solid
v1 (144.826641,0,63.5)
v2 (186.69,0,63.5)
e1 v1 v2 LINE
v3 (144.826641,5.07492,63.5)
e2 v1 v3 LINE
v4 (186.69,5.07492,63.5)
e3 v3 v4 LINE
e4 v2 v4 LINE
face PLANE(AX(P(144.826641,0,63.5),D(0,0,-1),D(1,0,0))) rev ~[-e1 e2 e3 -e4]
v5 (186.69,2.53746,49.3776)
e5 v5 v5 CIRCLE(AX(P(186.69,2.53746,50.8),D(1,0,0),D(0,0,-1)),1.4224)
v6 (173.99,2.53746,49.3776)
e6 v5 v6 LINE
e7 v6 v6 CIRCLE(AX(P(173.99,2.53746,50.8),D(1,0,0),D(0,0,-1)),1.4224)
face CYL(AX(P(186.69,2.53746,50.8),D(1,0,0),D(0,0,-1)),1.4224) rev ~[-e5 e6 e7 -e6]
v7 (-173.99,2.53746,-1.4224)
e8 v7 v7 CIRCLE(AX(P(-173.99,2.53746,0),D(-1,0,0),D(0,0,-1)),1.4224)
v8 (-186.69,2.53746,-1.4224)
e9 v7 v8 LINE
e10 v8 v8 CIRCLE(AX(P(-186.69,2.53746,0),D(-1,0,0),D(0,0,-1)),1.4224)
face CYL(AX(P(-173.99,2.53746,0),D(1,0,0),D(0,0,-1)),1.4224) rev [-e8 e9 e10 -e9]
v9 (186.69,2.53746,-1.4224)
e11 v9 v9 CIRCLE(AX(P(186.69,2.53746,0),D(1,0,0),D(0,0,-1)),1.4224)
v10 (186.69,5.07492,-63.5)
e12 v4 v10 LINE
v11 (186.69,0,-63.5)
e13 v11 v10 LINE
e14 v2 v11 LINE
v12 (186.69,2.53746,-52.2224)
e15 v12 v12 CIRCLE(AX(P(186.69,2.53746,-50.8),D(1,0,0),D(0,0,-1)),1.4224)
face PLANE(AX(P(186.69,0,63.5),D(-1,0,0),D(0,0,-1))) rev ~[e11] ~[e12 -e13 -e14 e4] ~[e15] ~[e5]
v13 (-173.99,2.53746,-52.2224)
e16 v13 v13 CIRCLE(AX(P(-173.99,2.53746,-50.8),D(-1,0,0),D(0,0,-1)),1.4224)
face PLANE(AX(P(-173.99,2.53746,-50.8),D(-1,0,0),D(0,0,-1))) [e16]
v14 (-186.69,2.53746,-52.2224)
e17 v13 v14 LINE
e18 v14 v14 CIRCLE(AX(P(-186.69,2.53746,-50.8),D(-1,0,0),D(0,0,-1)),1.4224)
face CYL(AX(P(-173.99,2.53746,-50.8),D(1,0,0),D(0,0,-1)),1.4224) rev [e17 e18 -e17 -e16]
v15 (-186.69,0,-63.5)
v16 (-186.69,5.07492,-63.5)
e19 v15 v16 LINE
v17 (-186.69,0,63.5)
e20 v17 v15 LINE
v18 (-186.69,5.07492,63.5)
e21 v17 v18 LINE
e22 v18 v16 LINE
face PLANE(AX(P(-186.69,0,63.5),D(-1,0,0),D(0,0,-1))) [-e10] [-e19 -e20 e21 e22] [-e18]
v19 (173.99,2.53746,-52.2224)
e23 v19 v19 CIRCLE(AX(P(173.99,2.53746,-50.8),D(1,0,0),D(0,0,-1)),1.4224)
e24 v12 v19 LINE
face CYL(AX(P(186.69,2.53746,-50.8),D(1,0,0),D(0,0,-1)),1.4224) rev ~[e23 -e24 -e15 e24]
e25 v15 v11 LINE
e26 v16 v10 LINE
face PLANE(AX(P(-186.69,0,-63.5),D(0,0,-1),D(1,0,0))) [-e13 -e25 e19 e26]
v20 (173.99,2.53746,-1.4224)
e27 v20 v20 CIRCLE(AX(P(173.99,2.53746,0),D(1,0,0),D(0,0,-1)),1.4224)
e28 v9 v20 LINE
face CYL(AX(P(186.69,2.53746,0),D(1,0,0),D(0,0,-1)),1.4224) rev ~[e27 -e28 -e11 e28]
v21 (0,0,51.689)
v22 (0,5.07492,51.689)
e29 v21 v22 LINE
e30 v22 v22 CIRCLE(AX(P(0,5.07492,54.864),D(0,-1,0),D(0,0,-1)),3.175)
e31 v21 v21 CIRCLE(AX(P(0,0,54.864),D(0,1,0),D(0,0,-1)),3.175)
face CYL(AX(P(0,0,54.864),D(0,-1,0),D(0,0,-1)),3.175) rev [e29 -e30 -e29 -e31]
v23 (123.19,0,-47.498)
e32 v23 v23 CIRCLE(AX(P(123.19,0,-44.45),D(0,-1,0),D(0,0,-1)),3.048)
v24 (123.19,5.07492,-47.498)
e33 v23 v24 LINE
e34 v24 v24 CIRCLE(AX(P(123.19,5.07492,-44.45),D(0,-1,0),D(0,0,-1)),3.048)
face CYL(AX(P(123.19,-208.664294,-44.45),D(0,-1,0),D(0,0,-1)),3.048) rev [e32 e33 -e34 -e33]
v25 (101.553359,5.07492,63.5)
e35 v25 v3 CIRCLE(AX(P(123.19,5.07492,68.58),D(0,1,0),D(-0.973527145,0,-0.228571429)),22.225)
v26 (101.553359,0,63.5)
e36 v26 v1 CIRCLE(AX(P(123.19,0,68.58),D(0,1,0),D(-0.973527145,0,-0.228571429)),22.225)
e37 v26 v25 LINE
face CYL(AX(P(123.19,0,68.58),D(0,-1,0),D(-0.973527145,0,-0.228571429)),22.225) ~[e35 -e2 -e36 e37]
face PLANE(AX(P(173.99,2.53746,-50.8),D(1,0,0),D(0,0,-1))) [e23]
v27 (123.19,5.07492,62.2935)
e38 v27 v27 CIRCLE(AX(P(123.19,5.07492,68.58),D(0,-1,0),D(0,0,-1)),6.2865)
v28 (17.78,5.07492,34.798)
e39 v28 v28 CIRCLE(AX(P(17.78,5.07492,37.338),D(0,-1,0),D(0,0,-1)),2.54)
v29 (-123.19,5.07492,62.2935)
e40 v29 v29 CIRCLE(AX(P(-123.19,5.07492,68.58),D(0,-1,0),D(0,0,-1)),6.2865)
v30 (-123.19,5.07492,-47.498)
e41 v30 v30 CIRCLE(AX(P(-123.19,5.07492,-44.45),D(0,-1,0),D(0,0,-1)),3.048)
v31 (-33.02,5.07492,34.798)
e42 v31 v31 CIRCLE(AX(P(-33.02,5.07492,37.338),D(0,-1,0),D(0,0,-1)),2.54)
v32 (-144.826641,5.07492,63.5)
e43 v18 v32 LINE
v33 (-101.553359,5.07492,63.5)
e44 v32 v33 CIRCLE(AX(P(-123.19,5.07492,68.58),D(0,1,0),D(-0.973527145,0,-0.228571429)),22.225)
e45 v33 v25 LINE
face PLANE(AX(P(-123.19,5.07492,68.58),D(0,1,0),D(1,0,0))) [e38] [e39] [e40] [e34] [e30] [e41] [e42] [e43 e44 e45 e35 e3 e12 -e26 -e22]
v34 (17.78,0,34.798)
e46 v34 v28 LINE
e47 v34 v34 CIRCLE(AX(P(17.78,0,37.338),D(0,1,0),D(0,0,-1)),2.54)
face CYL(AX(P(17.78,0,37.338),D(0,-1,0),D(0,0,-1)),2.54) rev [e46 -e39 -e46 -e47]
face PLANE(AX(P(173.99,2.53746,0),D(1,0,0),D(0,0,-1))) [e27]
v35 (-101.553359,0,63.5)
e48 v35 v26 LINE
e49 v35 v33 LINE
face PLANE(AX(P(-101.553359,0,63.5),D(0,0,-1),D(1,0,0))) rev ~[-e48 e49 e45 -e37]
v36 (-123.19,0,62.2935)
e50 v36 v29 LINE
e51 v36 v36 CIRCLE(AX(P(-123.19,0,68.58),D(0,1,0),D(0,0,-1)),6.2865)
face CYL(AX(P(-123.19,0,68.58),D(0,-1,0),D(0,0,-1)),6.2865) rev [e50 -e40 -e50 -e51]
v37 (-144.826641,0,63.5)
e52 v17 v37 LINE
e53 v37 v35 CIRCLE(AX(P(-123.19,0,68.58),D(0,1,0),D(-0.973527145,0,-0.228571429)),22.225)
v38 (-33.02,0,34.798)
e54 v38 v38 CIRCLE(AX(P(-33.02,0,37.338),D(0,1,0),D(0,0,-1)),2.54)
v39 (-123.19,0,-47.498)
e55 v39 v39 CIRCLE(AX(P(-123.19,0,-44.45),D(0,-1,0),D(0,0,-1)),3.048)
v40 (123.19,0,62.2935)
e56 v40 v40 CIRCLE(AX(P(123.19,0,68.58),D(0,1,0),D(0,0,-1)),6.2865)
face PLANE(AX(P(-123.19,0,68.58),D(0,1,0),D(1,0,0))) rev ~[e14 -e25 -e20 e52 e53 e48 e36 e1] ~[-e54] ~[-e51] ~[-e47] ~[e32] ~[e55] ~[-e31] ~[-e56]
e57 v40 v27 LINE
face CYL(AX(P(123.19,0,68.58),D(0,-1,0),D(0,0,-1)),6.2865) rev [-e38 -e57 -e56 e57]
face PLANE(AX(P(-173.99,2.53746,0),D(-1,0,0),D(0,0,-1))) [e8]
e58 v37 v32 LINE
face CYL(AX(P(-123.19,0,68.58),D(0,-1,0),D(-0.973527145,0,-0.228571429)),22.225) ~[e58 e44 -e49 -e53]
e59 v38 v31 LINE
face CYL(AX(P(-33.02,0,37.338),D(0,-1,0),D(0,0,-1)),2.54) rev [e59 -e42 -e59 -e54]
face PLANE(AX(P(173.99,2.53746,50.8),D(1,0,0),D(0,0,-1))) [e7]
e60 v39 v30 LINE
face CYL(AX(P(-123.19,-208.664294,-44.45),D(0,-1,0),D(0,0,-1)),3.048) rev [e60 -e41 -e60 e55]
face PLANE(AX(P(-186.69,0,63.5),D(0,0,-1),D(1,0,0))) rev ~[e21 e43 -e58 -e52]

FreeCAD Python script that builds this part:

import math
import FreeCAD as App
import Part
import Sketcher
from FreeCAD import Vector
Q = App.Units.Quantity

doc = App.newDocument("Part")
body = doc.addObject("PartDesign::Body", "Body")

# Sketch on XZ plane
sketch1 = body.newObject("Sketcher::SketchObject", "Sketch")
sketch1.AttachmentSupport = (doc.getObject("XZ_Plane"), [""])
sketch1.MapMode = "FlatFace"
sketch1.addGeometry([
    Part.ArcOfCircle(Part.Circle(Vector(-123, 69, 0), Vector(0, 0, 1), 22), math.radians(-13), math.radians(193)),  # 0
    Part.LineSegment(Vector(-102, 64, 0), Vector(102, 64, 0)),  # 1
    Part.ArcOfCircle(Part.Circle(Vector(123, 69, 0), Vector(0, 0, 1), 22), math.radians(-13), math.radians(193)),  # 2
    Part.LineSegment(Vector(145, 64, 0), Vector(187, 64, 0)),  # 3
    Part.LineSegment(Vector(187, 64, 0), Vector(187, -64, 0)),  # 4
    Part.LineSegment(Vector(187, -64, 0), Vector(-187, -64, 0)),  # 5
    Part.LineSegment(Vector(-187, -64, 0), Vector(-187, 64, 0)),  # 6
    Part.LineSegment(Vector(-187, 64, 0), Vector(-145, 64, 0)),  # 7
], False)
sketch1.addConstraint([
    Sketcher.Constraint("Coincident", 0, 1, 1, 1),
    Sketcher.Constraint("Coincident", 1, 2, 2, 2),
    Sketcher.Constraint("Coincident", 2, 1, 3, 1),
    Sketcher.Constraint("Coincident", 3, 2, 4, 1),
    Sketcher.Constraint("Coincident", 4, 2, 5, 1),
    Sketcher.Constraint("Coincident", 5, 2, 6, 1),
    Sketcher.Constraint("Coincident", 6, 2, 7, 1),
    Sketcher.Constraint("Coincident", 7, 2, 0, 2),
    Sketcher.Constraint("Horizontal", 1),
    Sketcher.Constraint("Horizontal", 3),
    Sketcher.Constraint("Vertical", 4),
    Sketcher.Constraint("Horizontal", 5),
    Sketcher.Constraint("Vertical", 6),
    Sketcher.Constraint("Horizontal", 7),
    Sketcher.Constraint("Equal", 0, 2),
    Sketcher.Constraint("Symmetric", 3, 2, 5, 2, -1, 1),
    Sketcher.Constraint("Symmetric", 0, 3, 2, 3, -2),
    Sketcher.Constraint("Horizontal", 1, 2, 2, 1),
    Sketcher.Constraint("Horizontal", 3, 2, 6, 2),
    Sketcher.Constraint("DistanceY", 4, 2, 4, 1, Q("5 in")),
    Sketcher.Constraint("DistanceX", 5, 2, 5, 1, Q("14.7 in")),
    Sketcher.Constraint("Radius", 0, Q("0.875 in")),
    Sketcher.Constraint("DistanceY", -1, 1, 0, 3, Q("2.7 in")),
    Sketcher.Constraint("DistanceX", 0, 3, 2, 3, Q("9.7 in")),
])
pad1 = body.newObject("PartDesign::Pad", "Pad")
pad1.Profile = sketch1
pad1.Length = Q("0.1998 in")
pad1.Reversed = True

# Sketch on XZ plane
sketch2 = body.newObject("Sketcher::SketchObject", "Sketch001")
sketch2.AttachmentSupport = (doc.getObject("XZ_Plane"), [""])
sketch2.MapMode = "FlatFace"
sketch2.addGeometry([
    Part.Circle(Vector(-123, 69, 0), Vector(0, 0, 1), 6),
    Part.Circle(Vector(123, 69, 0), Vector(0, 0, 1), 6),
], False)
sketch2.addConstraint([
    Sketcher.Constraint("Equal", 0, 1),
    Sketcher.Constraint("Symmetric", 0, 3, 1, 3, -2),
    Sketcher.Constraint("Diameter", 0, Q("0.495 in")),
    Sketcher.Constraint("DistanceY", -1, 1, 0, 3, Q("2.7 in")),
    Sketcher.Constraint("DistanceX", 0, 3, 1, 3, Q("9.7 in")),
])
pocket1 = body.newObject("PartDesign::Pocket", "Pocket")
pocket1.Profile = sketch2
pocket1.Type = "ThroughAll"

# Sketch on XZ plane
sketch3 = body.newObject("Sketcher::SketchObject", "Sketch002")
sketch3.AttachmentSupport = (doc.getObject("XZ_Plane"), [""])
sketch3.MapMode = "FlatFace"
sketch3.addGeometry([
    Part.Circle(Vector(-123.2, -44.5, 0), Vector(0, 0, 1), 3),
    Part.Circle(Vector(123.2, -44.5, 0), Vector(0, 0, 1), 3),
], False)
sketch3.addConstraint([
    Sketcher.Constraint("Equal", 0, 1),
    Sketcher.Constraint("Symmetric", 0, 3, 1, 3, -2),
    Sketcher.Constraint("Diameter", 0, Q("0.24 in")),
    Sketcher.Constraint("DistanceX", 0, 3, 1, 3, Q("9.7 in")),
    Sketcher.Constraint("DistanceY", 0, 3, -1, 1, Q("1.75 in")),
])
pocket2 = body.newObject("PartDesign::Pocket", "Pocket001")
pocket2.Profile = sketch3
pocket2.Type = "ThroughAll"
pocket2.Midplane = True

# Sketch on XZ plane
sketch4 = body.newObject("Sketcher::SketchObject", "Sketch003")
sketch4.AttachmentSupport = (doc.getObject("XZ_Plane"), [""])
sketch4.MapMode = "FlatFace"
sketch4.addGeometry([
    Part.Circle(Vector(-33, 37.3, 0), Vector(0, 0, 1), 2.5),
    Part.Circle(Vector(17.8, 37.3, 0), Vector(0, 0, 1), 2.5),
    Part.Circle(Vector(0, 54.9, 0), Vector(0, 0, 1), 3.2),
], False)
sketch4.addConstraint([
    Sketcher.Constraint("Equal", 0, 1),
    Sketcher.Constraint("PointOnObject", 2, 3, -2),
    Sketcher.Constraint("Horizontal", 0, 3, 1, 3),
    Sketcher.Constraint("Diameter", 0, Q("0.2 in")),
    Sketcher.Constraint("Diameter", 2, Q("0.25 in")),
    Sketcher.Constraint("DistanceX", 0, 3, 1, 3, Q("2 in")),
    Sketcher.Constraint("DistanceX", 0, 3, -1, 1, Q("1.3 in")),
    Sketcher.Constraint("DistanceY", -1, 1, 0, 3, Q("1.47 in")),
    Sketcher.Constraint("DistanceY", -1, 1, 2, 3, Q("2.16 in")),
])
pocket3 = body.newObject("PartDesign::Pocket", "Pocket002")
pocket3.Profile = sketch4
pocket3.Type = "ThroughAll"

# Sketch on YZ plane
sketch5 = body.newObject("Sketcher::SketchObject", "Sketch004")
sketch5.AttachmentSupport = (doc.getObject("YZ_Plane"), [""])
sketch5.MapMode = "FlatFace"
sketch5.AttachmentOffset = App.Placement(Vector(0, 0, 7.35 * 25.4), App.Rotation())
sketch5.addGeometry([
    Part.Circle(Vector(2.5, 0, 0), Vector(0, 0, 1), 1.4),
    Part.Circle(Vector(2.5, 50.8, 0), Vector(0, 0, 1), 1.4),
    Part.Circle(Vector(2.5, -50.8, 0), Vector(0, 0, 1), 1.4),
], False)
sketch5.addConstraint([
    Sketcher.Constraint("Equal", 0, 1),
    Sketcher.Constraint("Equal", 1, 2),
    Sketcher.Constraint("Symmetric", 1, 3, 2, 3, -1),
    Sketcher.Constraint("PointOnObject", 0, 3, -1),
    Sketcher.Constraint("Vertical", 0, 3, 1, 3),
    Sketcher.Constraint("Diameter", 0, Q("0.112 in")),
    Sketcher.Constraint("DistanceY", -1, 1, 1, 3, Q("2 in")),
    Sketcher.Constraint("DistanceX", -1, 1, 0, 3, Q("0.0999 in")),
])
pocket4 = body.newObject("PartDesign::Pocket", "Pocket003")
pocket4.Profile = sketch5
pocket4.Length = Q("0.5 in")

# Sketch on YZ plane
sketch6 = body.newObject("Sketcher::SketchObject", "Sketch005")
sketch6.AttachmentSupport = (doc.getObject("YZ_Plane"), [""])
sketch6.MapMode = "FlatFace"
sketch6.AttachmentOffset = App.Placement(Vector(0, 0, -6.85 * 25.4), App.Rotation())
sketch6.addGeometry([
    Part.Circle(Vector(2.5, -50.8, 0), Vector(0, 0, 1), 1.4),
    Part.Circle(Vector(2.5, 0, 0), Vector(0, 0, 1), 1.4),
], False)
sketch6.addConstraint([
    Sketcher.Constraint("Equal", 0, 1),
    Sketcher.Constraint("PointOnObject", 1, 3, -1),
    Sketcher.Constraint("Vertical", 0, 3, 1, 3),
    Sketcher.Constraint("Diameter", 0, Q("0.112 in")),
    Sketcher.Constraint("DistanceY", 0, 3, -1, 1, Q("2 in")),
    Sketcher.Constraint("DistanceX", -1, 1, 0, 3, Q("0.0999 in")),
])
pocket5 = body.newObject("PartDesign::Pocket", "Pocket004")
pocket5.Profile = sketch6
pocket5.Length = Q("0.5 in")

doc.recompute()
